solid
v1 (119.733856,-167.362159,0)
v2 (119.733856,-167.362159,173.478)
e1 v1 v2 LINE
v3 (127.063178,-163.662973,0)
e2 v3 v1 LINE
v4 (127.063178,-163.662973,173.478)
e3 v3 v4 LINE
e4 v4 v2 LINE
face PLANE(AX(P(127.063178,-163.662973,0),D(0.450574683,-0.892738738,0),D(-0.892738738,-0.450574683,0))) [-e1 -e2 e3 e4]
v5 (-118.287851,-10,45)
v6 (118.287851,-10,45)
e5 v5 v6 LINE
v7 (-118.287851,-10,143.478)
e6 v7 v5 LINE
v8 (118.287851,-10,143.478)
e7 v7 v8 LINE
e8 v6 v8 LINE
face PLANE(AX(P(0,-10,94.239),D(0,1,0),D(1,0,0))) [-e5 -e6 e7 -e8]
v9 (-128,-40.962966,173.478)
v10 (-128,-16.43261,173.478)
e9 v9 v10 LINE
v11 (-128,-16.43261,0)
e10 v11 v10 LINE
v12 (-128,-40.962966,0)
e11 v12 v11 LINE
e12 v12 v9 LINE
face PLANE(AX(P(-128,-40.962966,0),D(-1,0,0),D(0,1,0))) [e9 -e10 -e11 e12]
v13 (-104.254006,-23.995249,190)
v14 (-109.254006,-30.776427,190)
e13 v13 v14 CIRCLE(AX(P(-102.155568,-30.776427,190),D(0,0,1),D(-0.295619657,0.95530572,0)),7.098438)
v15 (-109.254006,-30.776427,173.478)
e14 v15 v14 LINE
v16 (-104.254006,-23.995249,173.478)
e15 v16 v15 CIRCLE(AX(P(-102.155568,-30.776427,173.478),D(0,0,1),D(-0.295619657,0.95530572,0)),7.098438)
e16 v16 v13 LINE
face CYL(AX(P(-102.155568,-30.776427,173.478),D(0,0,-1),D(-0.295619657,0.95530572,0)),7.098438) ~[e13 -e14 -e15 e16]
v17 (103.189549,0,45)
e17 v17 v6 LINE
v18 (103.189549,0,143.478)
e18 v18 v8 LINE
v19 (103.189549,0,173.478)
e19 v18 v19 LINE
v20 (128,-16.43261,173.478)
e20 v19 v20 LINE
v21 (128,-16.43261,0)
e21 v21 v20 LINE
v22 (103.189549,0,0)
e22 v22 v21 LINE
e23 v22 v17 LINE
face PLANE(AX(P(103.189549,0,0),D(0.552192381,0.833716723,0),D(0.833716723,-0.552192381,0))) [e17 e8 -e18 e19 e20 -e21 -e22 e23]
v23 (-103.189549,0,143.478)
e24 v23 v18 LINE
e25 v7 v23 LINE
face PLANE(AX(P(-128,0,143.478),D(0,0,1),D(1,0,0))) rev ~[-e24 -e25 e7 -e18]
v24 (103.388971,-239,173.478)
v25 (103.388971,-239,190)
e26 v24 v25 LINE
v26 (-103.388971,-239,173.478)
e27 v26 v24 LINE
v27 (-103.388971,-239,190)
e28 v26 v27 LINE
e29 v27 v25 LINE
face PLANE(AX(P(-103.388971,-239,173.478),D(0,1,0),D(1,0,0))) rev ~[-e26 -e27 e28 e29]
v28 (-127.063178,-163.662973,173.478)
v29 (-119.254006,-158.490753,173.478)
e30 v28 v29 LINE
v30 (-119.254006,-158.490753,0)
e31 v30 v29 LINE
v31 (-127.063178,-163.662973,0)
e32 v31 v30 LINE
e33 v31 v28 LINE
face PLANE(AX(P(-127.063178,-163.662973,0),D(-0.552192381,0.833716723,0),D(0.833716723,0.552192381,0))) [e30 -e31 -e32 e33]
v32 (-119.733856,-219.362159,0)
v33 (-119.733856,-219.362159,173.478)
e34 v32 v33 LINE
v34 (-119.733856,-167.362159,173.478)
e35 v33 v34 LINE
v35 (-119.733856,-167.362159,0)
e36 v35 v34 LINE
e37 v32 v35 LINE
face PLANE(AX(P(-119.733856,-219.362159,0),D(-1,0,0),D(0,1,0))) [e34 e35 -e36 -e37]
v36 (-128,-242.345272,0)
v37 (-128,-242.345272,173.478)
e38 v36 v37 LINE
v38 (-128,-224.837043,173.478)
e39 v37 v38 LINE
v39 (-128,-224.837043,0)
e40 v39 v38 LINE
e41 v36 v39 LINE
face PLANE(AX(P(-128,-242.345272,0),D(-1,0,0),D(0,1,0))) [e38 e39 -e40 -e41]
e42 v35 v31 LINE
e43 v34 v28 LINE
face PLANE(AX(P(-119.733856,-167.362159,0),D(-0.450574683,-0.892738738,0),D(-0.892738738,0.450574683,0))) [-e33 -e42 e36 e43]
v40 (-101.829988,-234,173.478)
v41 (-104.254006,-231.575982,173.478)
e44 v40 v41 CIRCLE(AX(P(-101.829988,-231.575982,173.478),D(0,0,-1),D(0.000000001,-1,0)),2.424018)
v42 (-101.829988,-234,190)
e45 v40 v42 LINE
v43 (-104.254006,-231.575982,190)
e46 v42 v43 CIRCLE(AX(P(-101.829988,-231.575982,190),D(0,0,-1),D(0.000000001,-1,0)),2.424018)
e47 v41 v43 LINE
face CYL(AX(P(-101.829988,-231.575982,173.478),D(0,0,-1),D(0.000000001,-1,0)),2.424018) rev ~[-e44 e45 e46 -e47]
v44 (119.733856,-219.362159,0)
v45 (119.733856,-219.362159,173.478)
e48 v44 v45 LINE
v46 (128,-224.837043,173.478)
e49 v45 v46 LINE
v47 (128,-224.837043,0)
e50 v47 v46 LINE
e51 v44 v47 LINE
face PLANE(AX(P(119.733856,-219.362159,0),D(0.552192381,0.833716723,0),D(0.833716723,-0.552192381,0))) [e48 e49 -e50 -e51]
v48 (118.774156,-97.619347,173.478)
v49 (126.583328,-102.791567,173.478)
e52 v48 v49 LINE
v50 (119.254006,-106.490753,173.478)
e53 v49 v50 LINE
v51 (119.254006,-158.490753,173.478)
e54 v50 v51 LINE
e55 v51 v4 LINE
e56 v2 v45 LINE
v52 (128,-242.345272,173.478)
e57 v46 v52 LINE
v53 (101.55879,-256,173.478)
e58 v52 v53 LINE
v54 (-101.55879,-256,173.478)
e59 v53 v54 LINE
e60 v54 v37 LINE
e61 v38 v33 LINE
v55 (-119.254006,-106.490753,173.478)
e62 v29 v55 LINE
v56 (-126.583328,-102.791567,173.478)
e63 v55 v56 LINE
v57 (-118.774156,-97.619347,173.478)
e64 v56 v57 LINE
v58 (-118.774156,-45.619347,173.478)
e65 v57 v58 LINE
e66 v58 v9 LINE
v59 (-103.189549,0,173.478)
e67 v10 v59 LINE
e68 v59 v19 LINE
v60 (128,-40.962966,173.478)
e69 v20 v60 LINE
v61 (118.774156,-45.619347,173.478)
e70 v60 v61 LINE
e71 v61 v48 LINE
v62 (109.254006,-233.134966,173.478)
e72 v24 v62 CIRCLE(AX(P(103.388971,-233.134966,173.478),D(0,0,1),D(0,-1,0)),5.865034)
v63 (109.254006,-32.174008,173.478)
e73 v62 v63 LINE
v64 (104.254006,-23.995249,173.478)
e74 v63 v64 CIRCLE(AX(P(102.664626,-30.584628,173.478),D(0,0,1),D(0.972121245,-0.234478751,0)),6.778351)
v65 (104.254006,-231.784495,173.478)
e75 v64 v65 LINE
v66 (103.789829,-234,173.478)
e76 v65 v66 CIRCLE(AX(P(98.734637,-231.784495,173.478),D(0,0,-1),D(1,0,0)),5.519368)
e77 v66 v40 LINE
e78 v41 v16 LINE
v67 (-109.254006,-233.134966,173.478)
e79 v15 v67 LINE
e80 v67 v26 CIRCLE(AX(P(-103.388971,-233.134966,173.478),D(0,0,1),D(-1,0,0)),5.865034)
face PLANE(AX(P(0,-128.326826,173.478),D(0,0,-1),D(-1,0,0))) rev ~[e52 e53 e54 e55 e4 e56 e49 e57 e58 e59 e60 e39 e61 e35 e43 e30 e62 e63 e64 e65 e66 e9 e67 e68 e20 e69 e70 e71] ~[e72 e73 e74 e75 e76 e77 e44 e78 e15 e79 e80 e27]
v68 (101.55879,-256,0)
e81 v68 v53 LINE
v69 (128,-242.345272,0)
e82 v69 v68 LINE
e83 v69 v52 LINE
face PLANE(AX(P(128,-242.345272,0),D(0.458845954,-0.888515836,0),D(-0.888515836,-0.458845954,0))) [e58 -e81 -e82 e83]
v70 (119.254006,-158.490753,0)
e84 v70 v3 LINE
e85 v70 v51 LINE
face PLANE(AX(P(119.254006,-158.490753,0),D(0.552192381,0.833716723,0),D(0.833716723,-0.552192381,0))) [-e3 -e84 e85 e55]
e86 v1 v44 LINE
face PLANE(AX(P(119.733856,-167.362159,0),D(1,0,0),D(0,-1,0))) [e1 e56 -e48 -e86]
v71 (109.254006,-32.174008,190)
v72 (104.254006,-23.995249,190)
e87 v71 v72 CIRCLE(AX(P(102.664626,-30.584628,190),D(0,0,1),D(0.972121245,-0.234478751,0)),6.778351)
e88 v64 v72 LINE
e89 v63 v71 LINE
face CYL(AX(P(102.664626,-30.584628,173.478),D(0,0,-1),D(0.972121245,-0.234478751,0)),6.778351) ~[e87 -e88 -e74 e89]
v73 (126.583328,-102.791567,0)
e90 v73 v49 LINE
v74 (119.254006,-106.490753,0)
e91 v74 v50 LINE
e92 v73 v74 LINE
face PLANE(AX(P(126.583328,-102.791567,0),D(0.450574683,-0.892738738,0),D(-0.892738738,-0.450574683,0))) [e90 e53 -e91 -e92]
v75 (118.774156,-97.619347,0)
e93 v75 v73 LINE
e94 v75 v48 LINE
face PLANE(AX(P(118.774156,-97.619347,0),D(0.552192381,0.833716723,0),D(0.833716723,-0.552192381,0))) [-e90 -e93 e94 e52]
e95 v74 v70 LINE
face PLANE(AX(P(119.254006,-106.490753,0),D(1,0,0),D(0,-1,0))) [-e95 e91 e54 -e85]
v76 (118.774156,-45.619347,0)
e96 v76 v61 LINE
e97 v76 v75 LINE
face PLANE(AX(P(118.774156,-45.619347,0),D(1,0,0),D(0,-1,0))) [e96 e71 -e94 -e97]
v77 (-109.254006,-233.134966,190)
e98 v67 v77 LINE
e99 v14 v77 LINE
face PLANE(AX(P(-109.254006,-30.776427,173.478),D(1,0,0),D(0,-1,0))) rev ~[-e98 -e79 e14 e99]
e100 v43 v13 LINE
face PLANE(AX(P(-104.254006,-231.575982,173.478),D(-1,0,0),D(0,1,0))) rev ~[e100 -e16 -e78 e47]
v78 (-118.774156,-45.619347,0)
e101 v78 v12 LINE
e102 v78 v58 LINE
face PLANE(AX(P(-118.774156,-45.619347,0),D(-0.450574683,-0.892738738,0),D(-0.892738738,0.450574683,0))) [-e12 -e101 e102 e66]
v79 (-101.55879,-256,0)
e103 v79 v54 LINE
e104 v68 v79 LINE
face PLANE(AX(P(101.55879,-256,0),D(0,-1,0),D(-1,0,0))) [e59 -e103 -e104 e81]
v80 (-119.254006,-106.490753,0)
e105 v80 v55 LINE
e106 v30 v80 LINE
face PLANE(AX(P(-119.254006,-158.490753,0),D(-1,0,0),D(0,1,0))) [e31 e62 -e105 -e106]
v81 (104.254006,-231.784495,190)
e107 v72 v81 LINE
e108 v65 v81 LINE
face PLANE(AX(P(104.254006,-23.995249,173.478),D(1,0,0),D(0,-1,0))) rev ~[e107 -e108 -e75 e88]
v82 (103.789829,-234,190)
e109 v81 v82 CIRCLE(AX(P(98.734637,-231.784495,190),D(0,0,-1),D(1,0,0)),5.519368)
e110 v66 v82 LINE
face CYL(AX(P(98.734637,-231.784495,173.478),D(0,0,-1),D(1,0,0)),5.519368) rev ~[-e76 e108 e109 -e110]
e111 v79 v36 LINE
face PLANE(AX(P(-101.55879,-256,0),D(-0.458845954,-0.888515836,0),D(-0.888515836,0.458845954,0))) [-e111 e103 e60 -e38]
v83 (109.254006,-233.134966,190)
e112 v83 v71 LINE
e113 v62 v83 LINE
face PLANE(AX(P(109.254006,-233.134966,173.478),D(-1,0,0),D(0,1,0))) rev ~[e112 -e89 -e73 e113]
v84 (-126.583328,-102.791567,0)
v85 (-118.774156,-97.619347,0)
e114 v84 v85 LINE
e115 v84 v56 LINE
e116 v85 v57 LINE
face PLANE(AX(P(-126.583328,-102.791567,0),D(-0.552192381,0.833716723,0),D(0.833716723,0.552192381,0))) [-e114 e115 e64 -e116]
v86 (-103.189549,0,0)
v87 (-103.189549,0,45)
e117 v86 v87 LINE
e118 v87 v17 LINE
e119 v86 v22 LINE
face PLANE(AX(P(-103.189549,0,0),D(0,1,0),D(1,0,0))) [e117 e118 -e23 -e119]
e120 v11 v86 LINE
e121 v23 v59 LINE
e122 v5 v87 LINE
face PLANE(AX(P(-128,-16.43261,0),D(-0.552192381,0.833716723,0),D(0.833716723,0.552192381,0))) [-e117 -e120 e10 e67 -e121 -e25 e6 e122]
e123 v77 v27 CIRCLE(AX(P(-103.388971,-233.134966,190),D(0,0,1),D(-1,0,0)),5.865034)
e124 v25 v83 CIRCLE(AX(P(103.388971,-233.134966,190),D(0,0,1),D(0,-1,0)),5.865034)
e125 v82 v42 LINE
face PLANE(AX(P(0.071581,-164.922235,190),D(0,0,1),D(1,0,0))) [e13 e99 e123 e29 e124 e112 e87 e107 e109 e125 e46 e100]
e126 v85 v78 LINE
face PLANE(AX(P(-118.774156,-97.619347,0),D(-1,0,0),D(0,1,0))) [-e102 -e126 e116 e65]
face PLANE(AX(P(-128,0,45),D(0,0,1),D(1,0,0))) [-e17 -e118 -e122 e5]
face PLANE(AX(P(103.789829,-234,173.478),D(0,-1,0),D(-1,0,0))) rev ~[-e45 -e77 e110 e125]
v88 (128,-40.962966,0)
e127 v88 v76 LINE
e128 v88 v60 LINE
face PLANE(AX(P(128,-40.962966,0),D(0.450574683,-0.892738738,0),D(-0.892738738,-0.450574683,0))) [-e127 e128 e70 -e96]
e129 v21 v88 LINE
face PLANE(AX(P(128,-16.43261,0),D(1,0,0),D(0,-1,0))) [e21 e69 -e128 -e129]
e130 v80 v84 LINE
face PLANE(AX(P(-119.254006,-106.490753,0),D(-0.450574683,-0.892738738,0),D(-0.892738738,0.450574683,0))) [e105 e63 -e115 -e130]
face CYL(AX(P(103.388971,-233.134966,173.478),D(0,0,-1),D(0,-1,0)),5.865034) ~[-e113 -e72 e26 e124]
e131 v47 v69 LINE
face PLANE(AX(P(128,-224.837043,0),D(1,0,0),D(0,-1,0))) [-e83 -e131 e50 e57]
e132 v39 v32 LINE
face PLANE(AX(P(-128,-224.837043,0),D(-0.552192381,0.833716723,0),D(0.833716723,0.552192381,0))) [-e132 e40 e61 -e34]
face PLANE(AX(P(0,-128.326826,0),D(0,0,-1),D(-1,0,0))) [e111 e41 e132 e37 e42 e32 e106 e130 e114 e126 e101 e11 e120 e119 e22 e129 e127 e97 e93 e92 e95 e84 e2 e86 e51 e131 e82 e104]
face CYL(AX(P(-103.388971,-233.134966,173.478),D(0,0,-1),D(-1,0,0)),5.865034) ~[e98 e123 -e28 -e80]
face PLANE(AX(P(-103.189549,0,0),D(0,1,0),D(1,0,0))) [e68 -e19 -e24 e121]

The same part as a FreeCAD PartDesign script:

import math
import FreeCAD as App
import Part
import Sketcher

doc = App.newDocument("Part")
body = doc.addObject("PartDesign::Body", "Body")

sketch1 = body.newObject("Sketcher::SketchObject", "Sketch")
sketch1.AttachmentSupport = (doc.getObject("XY_Plane"), [""])
sketch1.MapMode = "FlatFace"
sketch1.addGeometry(Part.LineSegment(App.Vector(103, 0, 0), App.Vector(-103, 0, 0)), False)
sketch1.addGeometry(Part.LineSegment(App.Vector(-103, 0, 0), App.Vector(-128, -16, 0)), False)
sketch1.addGeometry(Part.LineSegment(App.Vector(-128, -16, 0), App.Vector(-128, -41, 0)), False)
sketch1.addGeometry(Part.LineSegment(App.Vector(-128, -41, 0), App.Vector(-119, -46, 0)), False)
sketch1.addGeometry(Part.LineSegment(App.Vector(-119, -46, 0), App.Vector(-119, -98, 0)), False)
sketch1.addGeometry(Part.LineSegment(App.Vector(-119, -98, 0), App.Vector(-127, -103, 0)), False)
sketch1.addGeometry(Part.LineSegment(App.Vector(-127, -103, 0), App.Vector(-119, -106, 0)), False)
sketch1.addGeometry(Part.LineSegment(App.Vector(-119, -106, 0), App.Vector(-119, -158, 0)), False)
sketch1.addGeometry(Part.LineSegment(App.Vector(-119, -158, 0), App.Vector(-127, -164, 0)), False)
sketch1.addGeometry(Part.LineSegment(App.Vector(-127, -164, 0), App.Vector(-120, -167, 0)), False)
sketch1.addGeometry(Part.LineSegment(App.Vector(-120, -167, 0), App.Vector(-120, -219, 0)), False)
sketch1.addGeometry(Part.LineSegment(App.Vector(-120, -219, 0), App.Vector(-128, -225, 0)), False)
sketch1.addGeometry(Part.LineSegment(App.Vector(-128, -225, 0), App.Vector(-128, -242, 0)), False)
sketch1.addGeometry(Part.LineSegment(App.Vector(-128, -242, 0), App.Vector(-102, -256, 0)), False)
sketch1.addGeometry(Part.LineSegment(App.Vector(-102, -256, 0), App.Vector(102, -256, 0)), False)
sketch1.addGeometry(Part.LineSegment(App.Vector(102, -256, 0), App.Vector(128, -242, 0)), False)
sketch1.addGeometry(Part.LineSegment(App.Vector(128, -242, 0), App.Vector(128, -225, 0)), False)
sketch1.addGeometry(Part.LineSegment(App.Vector(128, -225, 0), App.Vector(120, -219, 0)), False)
sketch1.addGeometry(Part.LineSegment(App.Vector(120, -219, 0), App.Vector(120, -167, 0)), False)
sketch1.addGeometry(Part.LineSegment(App.Vector(120, -167, 0), App.Vector(127, -164, 0)), False)
sketch1.addGeometry(Part.LineSegment(App.Vector(127, -164, 0), App.Vector(119, -158, 0)), False)
sketch1.addGeometry(Part.LineSegment(App.Vector(119, -158, 0), App.Vector(119, -106, 0)), False)
sketch1.addGeometry(Part.LineSegment(App.Vector(119, -106, 0), App.Vector(127, -103, 0)), False)
sketch1.addGeometry(Part.LineSegment(App.Vector(127, -103, 0), App.Vector(119, -98, 0)), False)
sketch1.addGeometry(Part.LineSegment(App.Vector(119, -98, 0), App.Vector(119, -46, 0)), False)
sketch1.addGeometry(Part.LineSegment(App.Vector(119, -46, 0), App.Vector(128, -41, 0)), False)
sketch1.addGeometry(Part.LineSegment(App.Vector(128, -41, 0), App.Vector(128, -16, 0)), False)
sketch1.addGeometry(Part.LineSegment(App.Vector(128, -16, 0), App.Vector(103, 0, 0)), False)
sketch1.addConstraint(Sketcher.Constraint("Coincident", 0, 2, 1, 1))
sketch1.addConstraint(Sketcher.Constraint("Coincident", 1, 2, 2, 1))
sketch1.addConstraint(Sketcher.Constraint("Coincident", 2, 2, 3, 1))
sketch1.addConstraint(Sketcher.Constraint("Coincident", 3, 2, 4, 1))
sketch1.addConstraint(Sketcher.Constraint("Coincident", 4, 2, 5, 1))
sketch1.addConstraint(Sketcher.Constraint("Coincident", 5, 2, 6, 1))
sketch1.addConstraint(Sketcher.Constraint("Coincident", 6, 2, 7, 1))
sketch1.addConstraint(Sketcher.Constraint("Coincident", 7, 2, 8, 1))
sketch1.addConstraint(Sketcher.Constraint("Coincident", 8, 2, 9, 1))
sketch1.addConstraint(Sketcher.Constraint("Coincident", 9, 2, 10, 1))
sketch1.addConstraint(Sketcher.Constraint("Coincident", 10, 2, 11, 1))
sketch1.addConstraint(Sketcher.Constraint("Coincident", 11, 2, 12, 1))
sketch1.addConstraint(Sketcher.Constraint("Coincident", 12, 2, 13, 1))
sketch1.addConstraint(Sketcher.Constraint("Coincident", 13, 2, 14, 1))
sketch1.addConstraint(Sketcher.Constraint("Coincident", 14, 2, 15, 1))
sketch1.addConstraint(Sketcher.Constraint("Coincident", 15, 2, 16, 1))
sketch1.addConstraint(Sketcher.Constraint("Coincident", 16, 2, 17, 1))
sketch1.addConstraint(Sketcher.Constraint("Coincident", 17, 2, 18, 1))
sketch1.addConstraint(Sketcher.Constraint("Coincident", 18, 2, 19, 1))
sketch1.addConstraint(Sketcher.Constraint("Coincident", 19, 2, 20, 1))
sketch1.addConstraint(Sketcher.Constraint("Coincident", 20, 2, 21, 1))
sketch1.addConstraint(Sketcher.Constraint("Coincident", 21, 2, 22, 1))
sketch1.addConstraint(Sketcher.Constraint("Coincident", 22, 2, 23, 1))
sketch1.addConstraint(Sketcher.Constraint("Coincident", 23, 2, 24, 1))
sketch1.addConstraint(Sketcher.Constraint("Coincident", 24, 2, 25, 1))
sketch1.addConstraint(Sketcher.Constraint("Coincident", 25, 2, 26, 1))
sketch1.addConstraint(Sketcher.Constraint("Coincident", 26, 2, 27, 1))
sketch1.addConstraint(Sketcher.Constraint("Coincident", 27, 2, 0, 1))
sketch1.addConstraint(Sketcher.Constraint("Horizontal", 0))
sketch1.addConstraint(Sketcher.Constraint("Vertical", 2))
sketch1.addConstraint(Sketcher.Constraint("Vertical", 4))
sketch1.addConstraint(Sketcher.Constraint("Vertical", 7))
sketch1.addConstraint(Sketcher.Constraint("Vertical", 10))
sketch1.addConstraint(Sketcher.Constraint("Vertical", 12))
sketch1.addConstraint(Sketcher.Constraint("Horizontal", 14))
sketch1.addConstraint(Sketcher.Constraint("Vertical", 16))
sketch1.addConstraint(Sketcher.Constraint("Vertical", 18))
sketch1.addConstraint(Sketcher.Constraint("Vertical", 21))
sketch1.addConstraint(Sketcher.Constraint("Vertical", 24))
sketch1.addConstraint(Sketcher.Constraint("Vertical", 26))
sketch1.addConstraint(Sketcher.Constraint("Symmetric", 0, 2, 27, 2, -1, 1))
sketch1.addConstraint(Sketcher.Constraint("Symmetric", 12, 2, 15, 2, -2))
sketch1.addConstraint(Sketcher.Constraint("Symmetric", 10, 2, 17, 2, -2))
sketch1.addConstraint(Sketcher.Constraint("Symmetric", 8, 2, 19, 2, -2))
sketch1.addConstraint(Sketcher.Constraint("Symmetric", 7, 2, 20, 2, -2))
sketch1.addConstraint(Sketcher.Constraint("Symmetric", 5, 2, 22, 2, -2))
sketch1.addConstraint(Sketcher.Constraint("Symmetric", 4, 2, 23, 2, -2))
sketch1.addConstraint(Sketcher.Constraint("Symmetric", 2, 2, 25, 2, -2))
sketch1.addConstraint(Sketcher.Constraint("Parallel", 1, 5))
sketch1.addConstraint(Sketcher.Constraint("Parallel", 3, 6))
sketch1.addConstraint(Sketcher.Constraint("Parallel", 5, 8))
sketch1.addConstraint(Sketcher.Constraint("Parallel", 6, 9))
sketch1.addConstraint(Sketcher.Constraint("Parallel", 8, 11))
sketch1.addConstraint(Sketcher.Constraint("Parallel", 17, 20))
sketch1.addConstraint(Sketcher.Constraint("Parallel", 19, 22))
sketch1.addConstraint(Sketcher.Constraint("Parallel", 22, 25))
sketch1.addConstraint(Sketcher.Constraint("Parallel", 23, 27))
sketch1.addConstraint(Sketcher.Constraint("Horizontal", 9, 2, 18, 2))
sketch1.addConstraint(Sketcher.Constraint("Vertical", 2, 2, 11, 2))
sketch1.addConstraint(Sketcher.Constraint("Equal", 4, 7))
sketch1.addConstraint(Sketcher.Constraint("Equal", 7, 10))
sketch1.addConstraint(Sketcher.Constraint("Equal", 5, 8))
sketch1.addConstraint(Sketcher.Constraint("Equal", 6, 9))
sketch1.addConstraint(Sketcher.Constraint("Equal", 1, 13))
sketch1.addConstraint(Sketcher.Constraint("Equal", 13, 15))
sketch1.addConstraint(Sketcher.Constraint("DistanceY", 4, 2, 4, 1, 52.0))
sketch1.addConstraint(Sketcher.Constraint("DistanceX", 1, 2, -1, 1, 128.0))
sketch1.addConstraint(Sketcher.Constraint("DistanceY", 13, 2, -1, 1, 256.0))
sketch1.addConstraint(Sketcher.Constraint("Distance", 5, 9.366698))
sketch1.addConstraint(Sketcher.Constraint("DistanceX", 14, 1, 14, 2, 203.11758))
sketch1.addConstraint(Sketcher.Constraint("DistanceY", 12, 2, 12, 1, 17.508229))
sketch1.addConstraint(Sketcher.Constraint("DistanceY", 5, 2, 2, 2, 61.828601))
sketch1.addConstraint(Sketcher.Constraint("DistanceX", 9, 2, 4, 2, 0.9597))
sketch1.addConstraint(Sketcher.Constraint("DistanceY", 12, 2, 8, 2, 78.682299))
sketch1.addConstraint(Sketcher.Constraint("Distance", 1, 29.75885))
sketch1.addConstraint(Sketcher.Constraint("Distance", 6, 8.20993))
pad1 = body.newObject("PartDesign::Pad", "Pad")
pad1.Profile = sketch1
pad1.Length = 173.478

sketch2 = body.newObject("Sketcher::SketchObject", "Sketch001")
sketch2.AttachmentSupport = (doc.getObject("XY_Plane"), [""])
sketch2.MapMode = "FlatFace"
sketch2.AttachmentOffset = App.Placement(App.Vector(0, 0, 173.478), App.Rotation())
sketch2.addGeometry(Part.LineSegment(App.Vector(-109.3, -30.8, 0), App.Vector(-109.3, -233.1, 0)), False)
sketch2.addGeometry(Part.ArcOfCircle(Part.Circle(App.Vector(-103.4, -233.1, 0), App.Vector(0, 0, 1), 5.9), math.radians(180), math.radians(270)), False)
sketch2.addGeometry(Part.LineSegment(App.Vector(-103.4, -239, 0), App.Vector(103.4, -239, 0)), False)
sketch2.addGeometry(Part.ArcOfCircle(Part.Circle(App.Vector(103.4, -233.1, 0), App.Vector(0, 0, 1), 5.9), math.radians(-90), math.radians(0)), False)
sketch2.addGeometry(Part.LineSegment(App.Vector(109.3, -233.1, 0), App.Vector(109.3, -32.2, 0)), False)
sketch2.addGeometry(Part.ArcOfCircle(Part.Circle(App.Vector(102.7, -30.6, 0), App.Vector(0, 0, 1), 6.8), math.radians(-14), math.radians(76)), False)
sketch2.addGeometry(Part.LineSegment(App.Vector(104.3, -24, 0), App.Vector(104.3, -231.8, 0)), False)
sketch2.addGeometry(Part.ArcOfCircle(Part.Circle(App.Vector(98.7, -231.8, 0), App.Vector(0, 0, 1), 5.5), math.radians(-24), math.radians(0)), False)
sketch2.addGeometry(Part.LineSegment(App.Vector(103.8, -234, 0), App.Vector(-101.8, -234, 0)), False)
sketch2.addGeometry(Part.ArcOfCircle(Part.Circle(App.Vector(-101.8, -231.6, 0), App.Vector(0, 0, 1), 2.4), math.radians(180), math.radians(270)), False)
sketch2.addGeometry(Part.LineSegment(App.Vector(-104.3, -231.6, 0), App.Vector(-104.3, -24, 0)), False)
sketch2.addGeometry(Part.ArcOfCircle(Part.Circle(App.Vector(-102.2, -30.8, 0), App.Vector(0, 0, 1), 7.1), math.radians(107), math.radians(180)), False)
sketch2.addConstraint(Sketcher.Constraint("Tangent", 0, 2, 1, 1))
sketch2.addConstraint(Sketcher.Constraint("Tangent", 1, 2, 2, 1))
sketch2.addConstraint(Sketcher.Constraint("Tangent", 2, 2, 3, 1))
sketch2.addConstraint(Sketcher.Constraint("Tangent", 3, 2, 4, 1))
sketch2.addConstraint(Sketcher.Constraint("Coincident", 4, 2, 5, 1))
sketch2.addConstraint(Sketcher.Constraint("Coincident", 5, 2, 6, 1))
sketch2.addConstraint(Sketcher.Constraint("Tangent", 6, 2, 7, 2))
sketch2.addConstraint(Sketcher.Constraint("Coincident", 7, 1, 8, 1))
sketch2.addConstraint(Sketcher.Constraint("Tangent", 8, 2, 9, 2))
sketch2.addConstraint(Sketcher.Constraint("Tangent", 9, 1, 10, 1))
sketch2.addConstraint(Sketcher.Constraint("Coincident", 10, 2, 11, 1))
sketch2.addConstraint(Sketcher.Constraint("Tangent", 11, 2, 0, 1))
sketch2.addConstraint(Sketcher.Constraint("Vertical", 0))
sketch2.addConstraint(Sketcher.Constraint("Horizontal", 2))
sketch2.addConstraint(Sketcher.Constraint("Vertical", 4))
sketch2.addConstraint(Sketcher.Constraint("Vertical", 6))
sketch2.addConstraint(Sketcher.Constraint("Horizontal", 8))
sketch2.addConstraint(Sketcher.Constraint("Vertical", 10))
sketch2.addConstraint(Sketcher.Constraint("Equal", 1, 3))
sketch2.addConstraint(Sketcher.Constraint("Symmetric", 5, 2, 10, 2, -2))
sketch2.addConstraint(Sketcher.Constraint("DistanceY", 1, 2, -1, 1, 239.0))
sketch2.addConstraint(Sketcher.Constraint("DistanceY", 7, 1, -1, 1, 234.0))
sketch2.addConstraint(Sketcher.Constraint("DistanceX", 5, 2, 4, 2, 5.0))
sketch2.addConstraint(Sketcher.Constraint("DistanceX", 0, 2, 9, 1, 5.0))
sketch2.addConstraint(Sketcher.Constraint("Radius", 5, 6.778351))
sketch2.addConstraint(Sketcher.Constraint("Radius", 7, 5.519368))
sketch2.addConstraint(Sketcher.Constraint("Radius", 9, 2.424018))
sketch2.addConstraint(Sketcher.Constraint("Radius", 1, 5.865034))
sketch2.addConstraint(Sketcher.Constraint("Radius", 11, 7.098438))
sketch2.addConstraint(Sketcher.Constraint("DistanceY", 0, 2, 0, 1, 202.358538))
sketch2.addConstraint(Sketcher.Constraint("DistanceY", 11, 3, 5, 3, 0.191799))
sketch2.addConstraint(Sketcher.Constraint("DistanceX", 2, 1, 2, 2, 206.777943))
sketch2.addConstraint(Sketcher.Constraint("DistanceX", 8, 2, 8, 1, 205.619817))
pad2 = body.newObject("PartDesign::Pad", "Pad001")
pad2.Profile = sketch2
pad2.Length = 16.522

sketch3 = body.newObject("Sketcher::SketchObject", "Sketch002")
sketch3.AttachmentSupport = (doc.getObject("XZ_Plane"), [""])
sketch3.MapMode = "FlatFace"
sketch3.addGeometry(Part.LineSegment(App.Vector(-128, 45, 0), App.Vector(-128, 143, 0)), False)
sketch3.addGeometry(Part.LineSegment(App.Vector(-128, 143, 0), App.Vector(128, 143, 0)), False)
sketch3.addGeometry(Part.LineSegment(App.Vector(128, 143, 0), App.Vector(128, 45, 0)), False)
sketch3.addGeometry(Part.LineSegment(App.Vector(128, 45, 0), App.Vector(-128, 45, 0)), False)
sketch3.addConstraint(Sketcher.Constraint("Coincident", 0, 2, 1, 1))
sketch3.addConstraint(Sketcher.Constraint("Coincident", 1, 2, 2, 1))
sketch3.addConstraint(Sketcher.Constraint("Coincident", 2, 2, 3, 1))
sketch3.addConstraint(Sketcher.Constraint("Coincident", 3, 2, 0, 1))
sketch3.addConstraint(Sketcher.Constraint("Vertical", 0))
sketch3.addConstraint(Sketcher.Constraint("Horizontal", 1))
sketch3.addConstraint(Sketcher.Constraint("Vertical", 2))
sketch3.addConstraint(Sketcher.Constraint("Horizontal", 3))
sketch3.addConstraint(Sketcher.Constraint("DistanceX", 1, 1, 1, 2, 256.0))
sketch3.addConstraint(Sketcher.Constraint("DistanceX", 0, 2, -1, 1, 128.0))
sketch3.addConstraint(Sketcher.Constraint("DistanceY", -1, 1, 2, 2, 45.0))
sketch3.addConstraint(Sketcher.Constraint("DistanceY", 0, 1, 0, 2, 98.478))
pocket1 = body.newObject("PartDesign::Pocket", "Pocket")
pocket1.Profile = sketch3
pocket1.Length = 10
pocket1.Reversed = True

doc.recompute()
